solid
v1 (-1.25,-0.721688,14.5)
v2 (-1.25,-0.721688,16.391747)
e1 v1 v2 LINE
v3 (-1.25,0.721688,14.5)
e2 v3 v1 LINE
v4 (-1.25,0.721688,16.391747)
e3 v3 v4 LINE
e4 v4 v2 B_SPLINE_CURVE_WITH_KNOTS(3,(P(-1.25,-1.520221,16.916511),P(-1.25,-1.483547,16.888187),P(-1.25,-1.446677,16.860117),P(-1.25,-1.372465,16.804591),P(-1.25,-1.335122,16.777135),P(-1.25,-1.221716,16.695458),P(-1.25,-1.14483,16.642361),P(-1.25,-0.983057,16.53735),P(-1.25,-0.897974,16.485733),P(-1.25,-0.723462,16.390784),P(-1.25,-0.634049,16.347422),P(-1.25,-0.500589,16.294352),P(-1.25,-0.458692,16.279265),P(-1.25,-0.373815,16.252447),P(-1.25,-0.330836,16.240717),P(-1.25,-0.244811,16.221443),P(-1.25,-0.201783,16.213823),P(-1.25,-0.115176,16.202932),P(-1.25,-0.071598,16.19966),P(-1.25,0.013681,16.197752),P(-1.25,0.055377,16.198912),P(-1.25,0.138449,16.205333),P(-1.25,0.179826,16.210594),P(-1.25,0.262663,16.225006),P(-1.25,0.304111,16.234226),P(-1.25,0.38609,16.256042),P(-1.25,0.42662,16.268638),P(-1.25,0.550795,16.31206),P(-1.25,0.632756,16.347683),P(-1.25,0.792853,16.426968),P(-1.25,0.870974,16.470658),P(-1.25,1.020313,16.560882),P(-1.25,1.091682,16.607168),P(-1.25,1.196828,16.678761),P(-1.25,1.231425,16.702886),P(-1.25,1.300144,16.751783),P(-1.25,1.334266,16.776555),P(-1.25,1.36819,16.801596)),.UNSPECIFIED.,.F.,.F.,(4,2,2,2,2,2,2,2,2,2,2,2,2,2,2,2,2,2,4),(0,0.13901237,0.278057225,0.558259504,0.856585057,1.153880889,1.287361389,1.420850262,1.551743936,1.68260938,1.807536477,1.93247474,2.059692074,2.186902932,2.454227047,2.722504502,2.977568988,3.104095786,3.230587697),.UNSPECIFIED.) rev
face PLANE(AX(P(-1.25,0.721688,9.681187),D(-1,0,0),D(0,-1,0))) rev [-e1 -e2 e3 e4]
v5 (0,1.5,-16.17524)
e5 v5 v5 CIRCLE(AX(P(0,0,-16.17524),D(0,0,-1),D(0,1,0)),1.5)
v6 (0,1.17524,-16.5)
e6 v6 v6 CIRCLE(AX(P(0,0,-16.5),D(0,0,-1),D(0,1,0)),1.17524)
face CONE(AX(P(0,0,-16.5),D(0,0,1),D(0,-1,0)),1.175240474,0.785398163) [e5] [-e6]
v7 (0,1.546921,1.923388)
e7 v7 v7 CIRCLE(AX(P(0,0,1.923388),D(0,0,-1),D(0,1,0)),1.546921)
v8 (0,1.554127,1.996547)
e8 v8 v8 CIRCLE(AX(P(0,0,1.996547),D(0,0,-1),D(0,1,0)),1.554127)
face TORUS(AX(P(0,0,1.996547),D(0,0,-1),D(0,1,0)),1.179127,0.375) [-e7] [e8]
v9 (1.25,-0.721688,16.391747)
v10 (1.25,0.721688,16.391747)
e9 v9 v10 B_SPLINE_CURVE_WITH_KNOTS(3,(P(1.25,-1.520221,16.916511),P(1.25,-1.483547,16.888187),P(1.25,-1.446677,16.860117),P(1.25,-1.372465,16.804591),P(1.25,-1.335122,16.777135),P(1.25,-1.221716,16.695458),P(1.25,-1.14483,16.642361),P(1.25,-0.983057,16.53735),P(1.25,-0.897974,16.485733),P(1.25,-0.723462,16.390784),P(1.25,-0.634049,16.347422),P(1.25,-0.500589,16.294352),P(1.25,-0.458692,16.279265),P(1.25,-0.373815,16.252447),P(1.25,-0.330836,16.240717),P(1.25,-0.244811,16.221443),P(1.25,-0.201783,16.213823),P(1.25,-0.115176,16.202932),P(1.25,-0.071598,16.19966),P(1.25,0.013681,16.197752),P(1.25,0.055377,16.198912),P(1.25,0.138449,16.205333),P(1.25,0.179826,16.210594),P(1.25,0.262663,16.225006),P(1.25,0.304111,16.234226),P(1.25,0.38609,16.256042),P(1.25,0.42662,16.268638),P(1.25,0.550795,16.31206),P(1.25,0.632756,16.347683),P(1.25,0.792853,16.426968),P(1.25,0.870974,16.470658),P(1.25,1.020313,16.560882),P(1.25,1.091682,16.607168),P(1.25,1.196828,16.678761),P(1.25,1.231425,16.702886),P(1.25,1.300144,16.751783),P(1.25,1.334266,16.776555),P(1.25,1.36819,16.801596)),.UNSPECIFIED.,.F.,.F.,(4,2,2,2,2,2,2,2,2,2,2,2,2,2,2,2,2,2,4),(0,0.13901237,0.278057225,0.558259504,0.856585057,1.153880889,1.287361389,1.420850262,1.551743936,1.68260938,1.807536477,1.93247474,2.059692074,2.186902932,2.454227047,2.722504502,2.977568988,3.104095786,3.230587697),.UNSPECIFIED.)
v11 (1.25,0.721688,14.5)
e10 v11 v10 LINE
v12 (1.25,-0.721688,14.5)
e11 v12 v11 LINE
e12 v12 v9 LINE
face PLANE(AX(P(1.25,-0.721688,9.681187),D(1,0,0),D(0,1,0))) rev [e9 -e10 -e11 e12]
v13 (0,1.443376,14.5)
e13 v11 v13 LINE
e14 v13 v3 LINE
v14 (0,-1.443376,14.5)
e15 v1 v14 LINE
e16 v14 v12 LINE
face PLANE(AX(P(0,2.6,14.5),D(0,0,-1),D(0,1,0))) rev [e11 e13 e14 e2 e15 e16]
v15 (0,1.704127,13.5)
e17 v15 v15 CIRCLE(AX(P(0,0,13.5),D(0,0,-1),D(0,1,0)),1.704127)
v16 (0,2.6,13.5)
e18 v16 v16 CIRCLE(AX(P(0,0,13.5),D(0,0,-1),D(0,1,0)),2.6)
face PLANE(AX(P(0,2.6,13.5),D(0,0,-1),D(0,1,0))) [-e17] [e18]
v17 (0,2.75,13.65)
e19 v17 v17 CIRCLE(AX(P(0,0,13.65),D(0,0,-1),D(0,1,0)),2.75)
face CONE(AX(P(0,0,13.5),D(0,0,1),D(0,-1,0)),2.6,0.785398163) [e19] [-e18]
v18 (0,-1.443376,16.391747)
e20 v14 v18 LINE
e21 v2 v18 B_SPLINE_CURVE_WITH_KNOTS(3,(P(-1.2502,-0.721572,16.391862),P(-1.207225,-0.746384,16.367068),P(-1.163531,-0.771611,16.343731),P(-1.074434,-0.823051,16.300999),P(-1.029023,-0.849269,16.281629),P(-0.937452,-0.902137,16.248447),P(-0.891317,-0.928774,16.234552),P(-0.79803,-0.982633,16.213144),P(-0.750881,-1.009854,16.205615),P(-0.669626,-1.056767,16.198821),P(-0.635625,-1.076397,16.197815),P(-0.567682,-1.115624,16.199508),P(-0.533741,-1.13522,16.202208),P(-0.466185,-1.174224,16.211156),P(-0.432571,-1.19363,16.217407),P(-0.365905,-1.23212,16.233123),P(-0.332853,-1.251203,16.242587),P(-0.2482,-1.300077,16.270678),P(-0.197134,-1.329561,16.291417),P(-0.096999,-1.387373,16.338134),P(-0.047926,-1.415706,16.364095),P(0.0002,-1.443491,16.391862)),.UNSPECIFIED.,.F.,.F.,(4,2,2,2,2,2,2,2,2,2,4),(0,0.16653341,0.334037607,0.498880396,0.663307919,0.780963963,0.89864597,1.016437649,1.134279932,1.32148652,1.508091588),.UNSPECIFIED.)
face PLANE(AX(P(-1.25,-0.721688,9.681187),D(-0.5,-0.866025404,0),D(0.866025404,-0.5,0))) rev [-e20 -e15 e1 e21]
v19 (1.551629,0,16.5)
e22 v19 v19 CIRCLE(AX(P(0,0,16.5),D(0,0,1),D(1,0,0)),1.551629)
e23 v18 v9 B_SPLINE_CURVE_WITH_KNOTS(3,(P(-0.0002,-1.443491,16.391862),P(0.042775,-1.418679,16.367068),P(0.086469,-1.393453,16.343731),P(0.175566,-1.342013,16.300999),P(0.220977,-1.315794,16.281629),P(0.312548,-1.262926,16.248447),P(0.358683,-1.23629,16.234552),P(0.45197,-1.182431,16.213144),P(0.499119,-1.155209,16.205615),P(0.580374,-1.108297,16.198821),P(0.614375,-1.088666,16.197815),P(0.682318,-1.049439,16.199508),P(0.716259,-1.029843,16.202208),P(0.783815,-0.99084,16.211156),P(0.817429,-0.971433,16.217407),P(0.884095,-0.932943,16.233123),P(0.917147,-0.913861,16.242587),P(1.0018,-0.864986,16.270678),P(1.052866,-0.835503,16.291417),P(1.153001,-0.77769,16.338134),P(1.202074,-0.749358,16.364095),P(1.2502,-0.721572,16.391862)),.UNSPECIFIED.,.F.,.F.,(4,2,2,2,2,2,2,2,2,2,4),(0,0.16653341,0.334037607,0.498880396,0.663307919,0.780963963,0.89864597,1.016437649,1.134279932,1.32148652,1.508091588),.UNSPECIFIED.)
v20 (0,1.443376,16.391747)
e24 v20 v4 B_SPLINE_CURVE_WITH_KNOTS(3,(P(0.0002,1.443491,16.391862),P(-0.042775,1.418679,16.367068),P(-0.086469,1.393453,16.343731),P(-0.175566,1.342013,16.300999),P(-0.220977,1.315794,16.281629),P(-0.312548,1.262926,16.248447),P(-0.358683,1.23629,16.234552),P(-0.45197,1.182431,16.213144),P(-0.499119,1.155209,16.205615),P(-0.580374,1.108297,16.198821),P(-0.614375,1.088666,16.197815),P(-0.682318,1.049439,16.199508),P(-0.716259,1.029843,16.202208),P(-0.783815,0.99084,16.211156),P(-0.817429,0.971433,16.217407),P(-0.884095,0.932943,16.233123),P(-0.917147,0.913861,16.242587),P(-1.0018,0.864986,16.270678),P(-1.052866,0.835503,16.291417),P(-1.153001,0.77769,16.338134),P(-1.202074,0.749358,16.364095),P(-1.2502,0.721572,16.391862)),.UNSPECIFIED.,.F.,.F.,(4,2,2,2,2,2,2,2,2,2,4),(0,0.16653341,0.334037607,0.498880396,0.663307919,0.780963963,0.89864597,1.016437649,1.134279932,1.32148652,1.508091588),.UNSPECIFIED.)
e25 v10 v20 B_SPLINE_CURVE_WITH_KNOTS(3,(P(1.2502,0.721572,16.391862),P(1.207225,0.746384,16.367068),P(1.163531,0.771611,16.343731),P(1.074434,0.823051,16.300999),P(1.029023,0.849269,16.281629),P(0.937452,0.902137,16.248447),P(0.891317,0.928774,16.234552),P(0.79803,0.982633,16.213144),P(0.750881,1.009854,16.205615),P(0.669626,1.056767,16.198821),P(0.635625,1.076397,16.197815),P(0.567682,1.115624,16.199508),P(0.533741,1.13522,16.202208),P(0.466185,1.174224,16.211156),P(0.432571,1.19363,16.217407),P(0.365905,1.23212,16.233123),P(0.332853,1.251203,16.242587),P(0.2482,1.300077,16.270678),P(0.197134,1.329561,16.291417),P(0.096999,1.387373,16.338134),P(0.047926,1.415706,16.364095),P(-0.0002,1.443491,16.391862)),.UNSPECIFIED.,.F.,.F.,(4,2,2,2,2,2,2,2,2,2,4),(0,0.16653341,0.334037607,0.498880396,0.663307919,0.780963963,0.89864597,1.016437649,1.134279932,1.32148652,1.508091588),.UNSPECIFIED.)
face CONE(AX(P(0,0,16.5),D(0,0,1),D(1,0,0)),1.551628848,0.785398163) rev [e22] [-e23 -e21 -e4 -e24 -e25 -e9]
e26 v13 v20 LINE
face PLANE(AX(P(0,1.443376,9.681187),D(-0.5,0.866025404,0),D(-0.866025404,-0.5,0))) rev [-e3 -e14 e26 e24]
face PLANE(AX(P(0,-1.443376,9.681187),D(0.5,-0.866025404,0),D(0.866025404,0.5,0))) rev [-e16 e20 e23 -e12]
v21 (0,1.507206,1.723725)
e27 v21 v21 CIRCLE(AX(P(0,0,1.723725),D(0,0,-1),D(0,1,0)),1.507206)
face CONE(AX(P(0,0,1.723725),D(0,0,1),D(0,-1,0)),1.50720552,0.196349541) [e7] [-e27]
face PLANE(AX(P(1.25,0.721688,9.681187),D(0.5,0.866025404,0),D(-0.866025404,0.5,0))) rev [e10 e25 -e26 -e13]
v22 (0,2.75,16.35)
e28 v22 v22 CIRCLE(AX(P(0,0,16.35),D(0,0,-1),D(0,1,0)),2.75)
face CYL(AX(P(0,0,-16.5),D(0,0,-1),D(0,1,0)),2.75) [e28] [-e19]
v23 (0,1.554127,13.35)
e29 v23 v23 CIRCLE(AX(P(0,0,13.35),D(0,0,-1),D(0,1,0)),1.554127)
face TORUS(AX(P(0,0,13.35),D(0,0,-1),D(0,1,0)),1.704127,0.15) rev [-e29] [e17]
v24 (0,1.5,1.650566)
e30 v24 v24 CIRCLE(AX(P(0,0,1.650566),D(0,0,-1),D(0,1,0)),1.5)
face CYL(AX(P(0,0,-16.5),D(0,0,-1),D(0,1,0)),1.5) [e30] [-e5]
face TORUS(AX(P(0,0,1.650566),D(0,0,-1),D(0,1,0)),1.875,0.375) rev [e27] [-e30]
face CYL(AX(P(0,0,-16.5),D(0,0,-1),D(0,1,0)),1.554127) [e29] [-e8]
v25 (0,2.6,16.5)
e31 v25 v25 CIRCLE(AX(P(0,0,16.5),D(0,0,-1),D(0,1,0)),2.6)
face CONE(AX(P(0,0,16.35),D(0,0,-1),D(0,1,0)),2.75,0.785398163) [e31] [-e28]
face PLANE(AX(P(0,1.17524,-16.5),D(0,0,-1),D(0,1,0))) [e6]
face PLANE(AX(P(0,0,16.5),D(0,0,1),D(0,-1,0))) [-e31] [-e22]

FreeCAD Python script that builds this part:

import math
import FreeCAD as App
import Part
import Sketcher
Q = App.Units.Quantity


def faces_at(feature, points):
    """Names of the faces that lie closest to the given points."""
    faces = feature.Shape.Faces
    near = lambda p: min(range(len(faces)), key=lambda i: faces[i].distToShape(Part.Vertex(*p))[0])
    return sorted({f"Face{near(p) + 1}" for p in points})


def add_polygon(sketch, points):
    """Adds a closed chain of lines whose ends are joined by coincident constraints."""
    first, n = sketch.GeometryCount, len(points)
    for a, b in zip(points, points[1:] + points[:1]):
        sketch.addGeometry(Part.LineSegment(App.Vector(*a, 0), App.Vector(*b, 0)), False)
    for i in range(n):
        sketch.addConstraint(Sketcher.Constraint("Coincident", first + i, 2, first + (i + 1) % n, 1))

doc = App.newDocument("Part")
body = doc.addObject("PartDesign::Body", "Body")

sketch1 = body.newObject("Sketcher::SketchObject", "Sketch")
sketch1.AttachmentSupport = (doc.getObject("YZ_Plane"), [""])
sketch1.MapMode = "FlatFace"
sketch1.addGeometry([
    Part.LineSegment(App.Vector(2.6, 16.5, 0), App.Vector(0, 16.5, 0)),
    Part.LineSegment(App.Vector(0, 16.5, 0), App.Vector(0, -16.5, 0)),
    Part.LineSegment(App.Vector(0, -16.5, 0), App.Vector(1.18, -16.5, 0)),
    Part.LineSegment(App.Vector(1.18, -16.5, 0), App.Vector(1.5, -16.18, 0)),
    Part.LineSegment(App.Vector(1.5, -16.18, 0), App.Vector(1.5, 1.65, 0)),
    Part.ArcOfCircle(Part.Circle(App.Vector(1.87, 1.65, 0), App.Vector(0, 0, 1), 0.37), math.radians(168.75), math.radians(180)),
    Part.LineSegment(App.Vector(1.51, 1.72, 0), App.Vector(1.55, 1.92, 0)),
    Part.ArcOfCircle(Part.Circle(App.Vector(1.18, 2, 0), App.Vector(0, 0, 1), 0.38), math.radians(-11.25), math.radians(0)),
    Part.LineSegment(App.Vector(1.55, 2, 0), App.Vector(1.55, 13.35, 0)),
    Part.ArcOfCircle(Part.Circle(App.Vector(1.7, 13.35, 0), App.Vector(0, 0, 1), 0.15), math.radians(90), math.radians(180)),
    Part.LineSegment(App.Vector(1.7, 13.5, 0), App.Vector(2.6, 13.5, 0)),
    Part.LineSegment(App.Vector(2.6, 13.5, 0), App.Vector(2.75, 13.65, 0)),
    Part.LineSegment(App.Vector(2.75, 13.65, 0), App.Vector(2.75, 16.35, 0)),
    Part.LineSegment(App.Vector(2.75, 16.35, 0), App.Vector(2.6, 16.5, 0)),
], False)
sketch1.addConstraint([
    Sketcher.Constraint("Coincident", 0, 2, 1, 1),
    Sketcher.Constraint("Coincident", 1, 2, 2, 1),
    Sketcher.Constraint("Coincident", 2, 2, 3, 1),
    Sketcher.Constraint("Coincident", 3, 2, 4, 1),
    Sketcher.Constraint("Tangent", 4, 2, 5, 2),
    Sketcher.Constraint("Tangent", 5, 1, 6, 1),
    Sketcher.Constraint("Tangent", 6, 2, 7, 1),
    Sketcher.Constraint("Tangent", 7, 2, 8, 1),
    Sketcher.Constraint("Tangent", 8, 2, 9, 2),
    Sketcher.Constraint("Tangent", 9, 1, 10, 1),
    Sketcher.Constraint("Coincident", 10, 2, 11, 1),
    Sketcher.Constraint("Coincident", 11, 2, 12, 1),
    Sketcher.Constraint("Coincident", 12, 2, 13, 1),
    Sketcher.Constraint("Coincident", 13, 2, 0, 1),
    Sketcher.Constraint("Horizontal", 0),
    Sketcher.Constraint("Vertical", 1),
    Sketcher.Constraint("Horizontal", 2),
    Sketcher.Constraint("Vertical", 4),
    Sketcher.Constraint("Vertical", 8),
    Sketcher.Constraint("Horizontal", 10),
    Sketcher.Constraint("Vertical", 12),
    Sketcher.Constraint("Equal", 5, 7),
    Sketcher.Constraint("Symmetric", 0, 2, 1, 2, -1, 1),
    Sketcher.Constraint("Parallel", 3, 11),
    Sketcher.Constraint("Perpendicular", 11, 13),
    Sketcher.Constraint("Vertical", 10, 2, 13, 2),
    Sketcher.Constraint("Equal", 11, 13),
    Sketcher.Constraint("DistanceY", 1, 2, 1, 1, Q("33 mm")),
    Sketcher.Constraint("Radius", 9, Q("0.15 mm")),
    Sketcher.Constraint("DistanceX", 0, 2, 0, 1, Q("2.6 mm")),
    Sketcher.Constraint("DistanceY", 12, 1, 12, 2, Q("2.7 mm")),
    Sketcher.Constraint("Radius", 5, Q("0.375 mm")),
    Sketcher.Constraint("DistanceY", 9, 1, 0, 2, Q("3 mm")),
    Sketcher.Constraint("DistanceX", -1, 1, 3, 2, Q("1.5 mm")),
    Sketcher.Constraint("Angle", 6, Q("78.75 deg")),
    Sketcher.Constraint("DistanceX", 2, 1, 2, 2, Q("1.17524 mm")),
    Sketcher.Constraint("DistanceX", 10, 1, 10, 2, Q("0.895873 mm")),
    Sketcher.Constraint("DistanceY", 4, 1, 4, 2, Q("17.825806 mm")),
])
revolution = body.newObject("PartDesign::Revolution", "Revolution")
revolution.Profile = sketch1
revolution.ReferenceAxis = (sketch1, ["V_Axis"])
revolution.Angle = 360

sketch2 = body.newObject("Sketcher::SketchObject", "Sketch001")
sketch2.AttachmentSupport = (doc.getObject("XY_Plane"), [""])
sketch2.MapMode = "FlatFace"
sketch2.AttachmentOffset = App.Placement(App.Vector(0, 0, 16.5), App.Rotation())
add_polygon(sketch2, [(1.2, -0.7), (1.2, 0.7), (0, 1.4), (-1.2, 0.7), (-1.2, -0.7), (0, -1.4)])
sketch2.addConstraint([
    Sketcher.Constraint("Vertical", 0),
    Sketcher.Constraint("Vertical", 3),
    Sketcher.Constraint("Symmetric", 0, 2, 3, 2, -1, 1),
    Sketcher.Constraint("Symmetric", 1, 2, 4, 2, -1, 1),
    Sketcher.Constraint("PointOnObject", 1, 2, -2),
    Sketcher.Constraint("Parallel", 2, 5),
    Sketcher.Constraint("Horizontal", 0, 2, 2, 2),
    Sketcher.Constraint("Angle", 1, Q("150 deg")),
    Sketcher.Constraint("DistanceX", 2, 2, 0, 2, Q("2.5 mm")),
    Sketcher.Constraint("DistanceY", 0, 1, 0, 2, Q("1.443376 mm")),
])
pocket1 = body.newObject("PartDesign::Pocket", "Pocket")
pocket1.Profile = sketch2
pocket1.Length = 2
body2 = doc.addObject("PartDesign::Body", "Body001")

sketch3 = body2.newObject("Sketcher::SketchObject", "Sketch002")
sketch3.AttachmentSupport = (doc.getObject("XY_Plane001"), [""])
sketch3.MapMode = "FlatFace"
sketch3.AttachmentOffset = App.Placement(App.Vector(0, 0, 16.5), App.Rotation())
sketch3.addGeometry(Part.Circle(App.Vector(0, 0, 0), App.Vector(0, 0, 1), 1.6), False)
sketch3.addConstraint([
    Sketcher.Constraint("Coincident", 0, 3, -1, 1),
    Sketcher.Constraint("Diameter", 0, Q("3.103258 mm")),
])
pad1 = body2.newObject("PartDesign::Pad", "Pad")
pad1.Profile = sketch3
pad1.Length = 2
pad1.Reversed = True
doc.recompute()

datumplane = body2.newObject("PartDesign::Plane", "DatumPlane")
datumplane.AttachmentSupport = (doc.getObject("XY_Plane001"), [""])
datumplane.MapMode = "FlatFace"
datumplane.AttachmentOffset = App.Placement(App.Vector(0, 0, 16.5), App.Rotation())
draft = body2.newObject("PartDesign::Draft", "Draft")
draft.Base = (pad1, faces_at(pad1, [(-1.552, 0, 15.5)]))
draft.NeutralPlane = (datumplane, [""])
draft.Angle = 45
draft.Reversed = True
doc.recompute()

boolean = body.newObject("PartDesign::Boolean", "Boolean")
boolean.Type = "Cut"
boolean.addObjects([body2])

doc.recompute()
